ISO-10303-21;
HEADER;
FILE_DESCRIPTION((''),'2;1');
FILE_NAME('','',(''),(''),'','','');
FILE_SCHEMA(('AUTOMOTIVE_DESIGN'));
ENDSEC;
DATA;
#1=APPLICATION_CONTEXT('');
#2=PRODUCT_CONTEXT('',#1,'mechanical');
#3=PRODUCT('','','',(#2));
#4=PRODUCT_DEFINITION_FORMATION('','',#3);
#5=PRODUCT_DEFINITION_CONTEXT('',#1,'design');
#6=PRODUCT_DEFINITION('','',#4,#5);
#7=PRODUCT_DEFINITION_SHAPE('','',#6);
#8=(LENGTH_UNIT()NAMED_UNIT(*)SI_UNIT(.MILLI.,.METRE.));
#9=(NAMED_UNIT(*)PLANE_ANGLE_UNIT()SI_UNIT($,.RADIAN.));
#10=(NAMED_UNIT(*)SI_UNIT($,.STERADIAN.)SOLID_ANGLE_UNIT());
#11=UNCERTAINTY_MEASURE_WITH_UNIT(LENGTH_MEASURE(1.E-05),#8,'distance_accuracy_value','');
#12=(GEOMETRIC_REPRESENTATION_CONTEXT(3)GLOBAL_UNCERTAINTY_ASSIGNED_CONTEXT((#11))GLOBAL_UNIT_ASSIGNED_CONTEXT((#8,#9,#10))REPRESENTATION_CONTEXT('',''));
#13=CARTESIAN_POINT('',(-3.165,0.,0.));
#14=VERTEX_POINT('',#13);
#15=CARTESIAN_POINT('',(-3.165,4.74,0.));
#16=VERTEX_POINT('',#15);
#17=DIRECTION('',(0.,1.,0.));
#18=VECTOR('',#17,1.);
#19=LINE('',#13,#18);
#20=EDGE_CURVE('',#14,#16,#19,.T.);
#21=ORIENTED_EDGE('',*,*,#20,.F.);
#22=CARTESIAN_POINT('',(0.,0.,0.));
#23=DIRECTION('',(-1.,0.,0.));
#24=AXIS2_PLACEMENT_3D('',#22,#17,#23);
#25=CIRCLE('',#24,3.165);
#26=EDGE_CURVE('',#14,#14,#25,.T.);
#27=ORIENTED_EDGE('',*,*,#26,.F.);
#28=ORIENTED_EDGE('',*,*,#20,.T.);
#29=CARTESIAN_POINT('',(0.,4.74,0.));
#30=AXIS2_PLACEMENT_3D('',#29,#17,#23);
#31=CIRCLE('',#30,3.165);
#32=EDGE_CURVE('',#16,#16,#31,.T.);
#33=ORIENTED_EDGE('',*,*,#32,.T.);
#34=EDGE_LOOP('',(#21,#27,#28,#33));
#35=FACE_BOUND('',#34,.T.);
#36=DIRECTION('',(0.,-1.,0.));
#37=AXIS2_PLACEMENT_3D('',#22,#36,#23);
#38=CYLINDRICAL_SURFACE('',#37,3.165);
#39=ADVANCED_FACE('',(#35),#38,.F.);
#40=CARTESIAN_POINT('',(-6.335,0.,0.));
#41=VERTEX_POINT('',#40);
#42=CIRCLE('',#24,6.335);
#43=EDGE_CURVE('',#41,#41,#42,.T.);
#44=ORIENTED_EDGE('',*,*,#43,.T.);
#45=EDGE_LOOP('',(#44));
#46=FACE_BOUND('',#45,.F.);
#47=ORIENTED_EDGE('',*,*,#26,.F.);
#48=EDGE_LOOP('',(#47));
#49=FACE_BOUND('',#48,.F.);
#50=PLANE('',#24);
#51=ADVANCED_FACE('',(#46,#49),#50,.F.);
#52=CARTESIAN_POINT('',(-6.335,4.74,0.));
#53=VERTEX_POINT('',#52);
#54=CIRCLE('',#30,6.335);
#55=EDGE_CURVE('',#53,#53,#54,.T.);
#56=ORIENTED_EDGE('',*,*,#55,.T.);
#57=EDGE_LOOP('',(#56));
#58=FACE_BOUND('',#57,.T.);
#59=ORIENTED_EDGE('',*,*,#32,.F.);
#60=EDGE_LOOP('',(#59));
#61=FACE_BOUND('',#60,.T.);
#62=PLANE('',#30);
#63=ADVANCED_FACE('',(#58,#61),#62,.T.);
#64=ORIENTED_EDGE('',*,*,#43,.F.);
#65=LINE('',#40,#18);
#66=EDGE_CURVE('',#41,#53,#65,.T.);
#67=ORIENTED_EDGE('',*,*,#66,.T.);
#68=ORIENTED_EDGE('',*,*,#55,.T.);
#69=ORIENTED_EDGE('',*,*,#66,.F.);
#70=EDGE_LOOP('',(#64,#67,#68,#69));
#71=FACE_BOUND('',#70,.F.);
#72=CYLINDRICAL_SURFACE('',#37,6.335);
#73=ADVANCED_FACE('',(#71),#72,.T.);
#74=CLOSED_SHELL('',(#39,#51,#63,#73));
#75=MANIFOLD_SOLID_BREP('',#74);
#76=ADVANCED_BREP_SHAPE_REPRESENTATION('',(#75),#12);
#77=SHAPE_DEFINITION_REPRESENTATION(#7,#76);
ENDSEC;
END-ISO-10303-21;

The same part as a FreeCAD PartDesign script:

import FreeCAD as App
import Part
import Sketcher

doc = App.newDocument("Part")
body = doc.addObject("PartDesign::Body", "Body")

sketch1 = doc.addObject("Sketcher::SketchObject", "Sketch")
body.addObject(sketch1)
sketch1.AttachmentSupport = (doc.XZ_Plane, [""])
sketch1.MapMode = "FlatFace"
sketch1.addGeometry([
    Part.Circle(App.Vector(0, 0, 0), App.Vector(0, 0, 1), 6.3),
    Part.Circle(App.Vector(0, 0, 0), App.Vector(0, 0, 1), 3.2),
], False)
sketch1.addConstraint([
    Sketcher.Constraint("Coincident", 0, 3, -1, 1),
    Sketcher.Constraint("Coincident", 1, 3, -1, 1),
    Sketcher.Constraint("Diameter", 0, 12.67),
    Sketcher.Constraint("Diameter", 1, 6.33),
])
pad1 = doc.addObject("PartDesign::Pad", "Pad")
body.addObject(pad1)
pad1.Profile = sketch1
pad1.Length = 4.74
pad1.Reversed = True

doc.recompute()
